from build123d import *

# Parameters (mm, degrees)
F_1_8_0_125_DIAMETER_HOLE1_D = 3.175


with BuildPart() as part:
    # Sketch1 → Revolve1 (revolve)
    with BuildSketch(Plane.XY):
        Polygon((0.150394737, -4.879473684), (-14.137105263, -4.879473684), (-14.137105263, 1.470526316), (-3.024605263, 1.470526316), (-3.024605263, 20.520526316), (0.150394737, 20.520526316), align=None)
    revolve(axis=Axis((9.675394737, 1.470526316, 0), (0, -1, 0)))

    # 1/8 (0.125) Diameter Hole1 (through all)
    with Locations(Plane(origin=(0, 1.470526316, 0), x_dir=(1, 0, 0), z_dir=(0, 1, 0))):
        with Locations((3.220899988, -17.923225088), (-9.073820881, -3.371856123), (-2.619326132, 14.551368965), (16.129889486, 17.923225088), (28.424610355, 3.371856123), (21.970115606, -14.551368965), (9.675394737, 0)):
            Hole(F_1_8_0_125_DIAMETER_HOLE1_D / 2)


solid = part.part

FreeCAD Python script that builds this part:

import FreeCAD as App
import Part
import Sketcher
Q = App.Units.Quantity

doc = App.newDocument("Part")
params = doc.addObject("Spreadsheet::Sheet", "Params")
for row, (alias, value) in enumerate([
    ("sketch1_height", "1 in"),
    ("sketch1_height2", "0.75 in"),
    ("sketch1_width", "0.5625 in"),
    ("sketch1_width2", "0.125 in"),
    ("revolution_angle", "360 deg"),
    ("sketch2_diameter", "0.125 in"),
    ("hole_diameter", "0.125 in"),
], start=1):
    params.set(f"A{row}", alias)
    params.set(f"B{row}", "=" + value)
    params.setAlias(f"B{row}", alias)

body = doc.addObject("PartDesign::Body", "Body")

# Sketch on XY plane
sketch1 = body.newObject("Sketcher::SketchObject", "Sketch")
sketch1.AttachmentSupport = (doc.getObject("XY_Plane"), [""])
sketch1.MapMode = "FlatFace"
sketch1.addGeometry(Part.LineSegment(App.Vector(-14.1, -4.9, 0), App.Vector(0.2, -4.9, 0)), False)
sketch1.addGeometry(Part.LineSegment(App.Vector(0.2, -4.9, 0), App.Vector(0.2, 20.5, 0)), False)
sketch1.addGeometry(Part.LineSegment(App.Vector(0.2, 20.5, 0), App.Vector(-3, 20.5, 0)), False)
sketch1.addGeometry(Part.LineSegment(App.Vector(-3, 20.5, 0), App.Vector(-3, 1.5, 0)), False)
sketch1.addGeometry(Part.LineSegment(App.Vector(-3, 1.5, 0), App.Vector(-14.1, 1.5, 0)), False)
sketch1.addGeometry(Part.LineSegment(App.Vector(-14.1, 1.5, 0), App.Vector(-14.1, -4.9, 0)), False)
sketch1.addGeometry(Part.LineSegment(App.Vector(9.7, 20.5, 0), App.Vector(9.7, -4.9, 0)), True)  # axis
sketch1.addConstraint(Sketcher.Constraint("Coincident", 0, 2, 1, 1))
sketch1.addConstraint(Sketcher.Constraint("Coincident", 1, 2, 2, 1))
sketch1.addConstraint(Sketcher.Constraint("Coincident", 2, 2, 3, 1))
sketch1.addConstraint(Sketcher.Constraint("Coincident", 3, 2, 4, 1))
sketch1.addConstraint(Sketcher.Constraint("Coincident", 4, 2, 5, 1))
sketch1.addConstraint(Sketcher.Constraint("Coincident", 5, 2, 0, 1))
sketch1.addConstraint(Sketcher.Constraint("Horizontal", 0))
sketch1.addConstraint(Sketcher.Constraint("Vertical", 1))
sketch1.addConstraint(Sketcher.Constraint("Horizontal", 2))
sketch1.addConstraint(Sketcher.Constraint("Vertical", 3))
sketch1.addConstraint(Sketcher.Constraint("Horizontal", 4))
sketch1.addConstraint(Sketcher.Constraint("Vertical", 5))
sketch1.addConstraint(Sketcher.Constraint("Vertical", 6))
sketch1.addConstraint(Sketcher.Constraint("Horizontal", 2, 2, 6, 1))
sketch1.addConstraint(Sketcher.Constraint("Horizontal", 5, 2, 6, 2))
sketch1.addConstraint(Sketcher.Constraint("DistanceY", 1, 1, 1, 2, Q("1 in")))
sketch1.addConstraint(Sketcher.Constraint("DistanceY", 3, 2, 3, 1, Q("0.75 in")))
sketch1.addConstraint(Sketcher.Constraint("DistanceX", 2, 2, 6, 1, Q("0.5 in")))
sketch1.addConstraint(Sketcher.Constraint("DistanceX", 0, 1, 0, 2, Q("0.5625 in")))
sketch1.addConstraint(Sketcher.Constraint("DistanceX", 2, 2, 2, 1, Q("0.125 in")))
sketch1.addConstraint(Sketcher.Constraint("DistanceX", -1, 1, 0, 2, 0.150395))
sketch1.addConstraint(Sketcher.Constraint("DistanceY", 0, 2, -1, 1, 4.879474))
sketch1.setExpression("Constraints[15]", "Params.sketch1_height")
sketch1.setExpression("Constraints[16]", "Params.sketch1_height2")
sketch1.setExpression("Constraints[18]", "Params.sketch1_width")
sketch1.setExpression("Constraints[19]", "Params.sketch1_width2")
revolution = body.newObject("PartDesign::Revolution", "Revolution")
revolution.Profile = sketch1
revolution.ReferenceAxis = (sketch1, ["Axis0"])
revolution.setExpression("Angle", "Params.revolution_angle")

# Sketch on XZ plane
sketch2 = body.newObject("Sketcher::SketchObject", "Sketch001")
sketch2.AttachmentSupport = (doc.getObject("XZ_Plane"), [""])
sketch2.MapMode = "FlatFace"
sketch2.AttachmentOffset = App.Placement(App.Vector(0, 0, -1.470526), App.Rotation())
sketch2.addGeometry(Part.Circle(App.Vector(3.2, 17.9, 0), App.Vector(0, 0, 1), 1.6), False)
sketch2.addGeometry(Part.Circle(App.Vector(-9.1, 3.4, 0), App.Vector(0, 0, 1), 1.6), False)
sketch2.addGeometry(Part.Circle(App.Vector(-2.6, -14.6, 0), App.Vector(0, 0, 1), 1.6), False)
sketch2.addGeometry(Part.Circle(App.Vector(16.1, -17.9, 0), App.Vector(0, 0, 1), 1.6), False)
sketch2.addGeometry(Part.Circle(App.Vector(28.4, -3.4, 0), App.Vector(0, 0, 1), 1.6), False)
sketch2.addGeometry(Part.Circle(App.Vector(22, 14.6, 0), App.Vector(0, 0, 1), 1.6), False)
sketch2.addGeometry(Part.Circle(App.Vector(9.7, 0, 0), App.Vector(0, 0, 1), 1.6), False)
sketch2.addConstraint(Sketcher.Constraint("Equal", 0, 1))
sketch2.addConstraint(Sketcher.Constraint("Equal", 1, 2))
sketch2.addConstraint(Sketcher.Constraint("Equal", 2, 3))
sketch2.addConstraint(Sketcher.Constraint("Equal", 3, 4))
sketch2.addConstraint(Sketcher.Constraint("Equal", 4, 5))
sketch2.addConstraint(Sketcher.Constraint("Equal", 5, 6))
sketch2.addConstraint(Sketcher.Constraint("PointOnObject", 6, 3, -1))
sketch2.addConstraint(Sketcher.Constraint("Diameter", 0, Q("0.125 in")))
sketch2.addConstraint(Sketcher.Constraint("DistanceX", -1, 1, 0, 3, 3.2209))
sketch2.addConstraint(Sketcher.Constraint("DistanceX", 1, 3, -1, 1, 9.073821))
sketch2.addConstraint(Sketcher.Constraint("DistanceY", 2, 3, -1, 1, 14.551369))
sketch2.addConstraint(Sketcher.Constraint("DistanceX", -1, 1, 3, 3, 16.129889))
sketch2.addConstraint(Sketcher.Constraint("DistanceX", -1, 1, 4, 3, 28.42461))
sketch2.addConstraint(Sketcher.Constraint("DistanceY", -1, 1, 5, 3, 14.551369))
sketch2.addConstraint(Sketcher.Constraint("DistanceY", 1, 3, 0, 3, 14.551369))
sketch2.addConstraint(Sketcher.Constraint("DistanceY", 3, 3, 1, 3, 21.295081))
sketch2.addConstraint(Sketcher.Constraint("DistanceY", 3, 3, 4, 3, 14.551369))
sketch2.addConstraint(Sketcher.Constraint("DistanceX", 2, 3, 5, 3, 24.589442))
sketch2.addConstraint(Sketcher.Constraint("DistanceX", 2, 3, 6, 3, 12.294721))
sketch2.addConstraint(Sketcher.Constraint("DistanceY", -1, 1, 0, 3, 17.923225))
sketch2.addConstraint(Sketcher.Constraint("DistanceX", 2, 3, -1, 1, 2.619326))
sketch2.setExpression("Constraints[7]", "Params.sketch2_diameter")
doc.recompute()
hole = body.newObject("PartDesign::Hole", "Hole")
hole.Profile = sketch2
hole.ThreadType = "None"
hole.setExpression("Diameter", "Params.hole_diameter")
hole.DepthType = "ThroughAll"
hole.Reversed = True

doc.recompute()
